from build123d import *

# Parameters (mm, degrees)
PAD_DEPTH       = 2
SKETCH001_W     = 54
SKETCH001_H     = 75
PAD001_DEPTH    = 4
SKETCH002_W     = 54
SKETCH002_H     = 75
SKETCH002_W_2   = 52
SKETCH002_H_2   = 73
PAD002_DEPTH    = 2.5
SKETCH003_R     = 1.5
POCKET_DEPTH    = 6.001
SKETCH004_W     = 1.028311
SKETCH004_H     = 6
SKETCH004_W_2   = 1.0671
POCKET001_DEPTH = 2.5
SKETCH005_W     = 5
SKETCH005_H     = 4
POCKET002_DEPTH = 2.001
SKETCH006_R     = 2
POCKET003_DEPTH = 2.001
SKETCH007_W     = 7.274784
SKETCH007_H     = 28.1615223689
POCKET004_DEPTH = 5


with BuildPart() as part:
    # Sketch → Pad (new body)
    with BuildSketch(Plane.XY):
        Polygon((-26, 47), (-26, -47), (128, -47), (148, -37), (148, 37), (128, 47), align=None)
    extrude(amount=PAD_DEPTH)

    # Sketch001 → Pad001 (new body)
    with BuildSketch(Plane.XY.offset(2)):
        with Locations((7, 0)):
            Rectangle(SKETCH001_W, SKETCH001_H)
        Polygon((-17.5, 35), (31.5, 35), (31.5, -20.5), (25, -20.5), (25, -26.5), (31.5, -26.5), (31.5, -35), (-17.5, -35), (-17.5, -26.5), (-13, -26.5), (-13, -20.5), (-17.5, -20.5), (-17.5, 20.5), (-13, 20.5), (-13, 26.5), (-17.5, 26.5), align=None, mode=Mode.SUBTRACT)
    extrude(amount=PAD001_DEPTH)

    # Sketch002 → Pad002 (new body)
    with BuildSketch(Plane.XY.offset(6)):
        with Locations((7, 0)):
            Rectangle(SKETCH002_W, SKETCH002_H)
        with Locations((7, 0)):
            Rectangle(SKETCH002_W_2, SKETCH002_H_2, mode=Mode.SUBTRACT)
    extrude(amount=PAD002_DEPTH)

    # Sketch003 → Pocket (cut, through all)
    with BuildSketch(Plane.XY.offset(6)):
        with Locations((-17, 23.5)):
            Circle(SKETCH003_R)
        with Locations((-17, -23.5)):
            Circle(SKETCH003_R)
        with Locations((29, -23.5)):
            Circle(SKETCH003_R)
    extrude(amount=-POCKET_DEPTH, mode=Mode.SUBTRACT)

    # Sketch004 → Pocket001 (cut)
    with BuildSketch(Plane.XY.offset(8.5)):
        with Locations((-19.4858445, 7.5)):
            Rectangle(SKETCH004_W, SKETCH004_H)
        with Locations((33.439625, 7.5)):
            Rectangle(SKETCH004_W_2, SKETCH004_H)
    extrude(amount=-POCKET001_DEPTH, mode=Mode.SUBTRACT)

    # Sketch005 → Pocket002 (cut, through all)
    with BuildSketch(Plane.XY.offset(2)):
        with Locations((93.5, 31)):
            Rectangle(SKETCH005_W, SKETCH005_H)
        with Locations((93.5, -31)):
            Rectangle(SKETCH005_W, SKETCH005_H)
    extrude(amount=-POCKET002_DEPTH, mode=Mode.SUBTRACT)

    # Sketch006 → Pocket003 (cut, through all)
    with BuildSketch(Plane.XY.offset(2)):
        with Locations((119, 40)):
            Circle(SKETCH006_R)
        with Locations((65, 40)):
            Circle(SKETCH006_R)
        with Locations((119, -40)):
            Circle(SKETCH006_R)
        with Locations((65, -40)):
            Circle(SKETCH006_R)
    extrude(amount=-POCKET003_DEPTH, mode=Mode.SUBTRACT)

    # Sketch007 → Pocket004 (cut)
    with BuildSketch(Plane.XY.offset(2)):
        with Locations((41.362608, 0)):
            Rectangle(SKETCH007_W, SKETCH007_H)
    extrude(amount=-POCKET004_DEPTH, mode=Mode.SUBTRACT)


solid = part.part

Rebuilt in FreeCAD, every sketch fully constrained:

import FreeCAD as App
import Part
import Sketcher


def add_polygon(sketch, points):
    """Adds a closed chain of lines whose ends are joined by coincident constraints."""
    first, n = sketch.GeometryCount, len(points)
    for a, b in zip(points, points[1:] + points[:1]):
        sketch.addGeometry(Part.LineSegment(App.Vector(*a, 0), App.Vector(*b, 0)), False)
    for i in range(n):
        sketch.addConstraint(Sketcher.Constraint("Coincident", first + i, 2, first + (i + 1) % n, 1))

doc = App.newDocument("Part")
body = doc.addObject("PartDesign::Body", "Body")

# Sketch on XY plane
sketch1 = body.newObject("Sketcher::SketchObject", "Sketch")
sketch1.AttachmentSupport = (doc.getObject("XY_Plane"), [""])
sketch1.MapMode = "FlatFace"
add_polygon(sketch1, [(-26, 47), (-26, -47), (128, -47), (148, -37), (148, 37), (128, 47)])  # lines 0-5
sketch1.addConstraint([
    Sketcher.Constraint("Vertical", 0),
    Sketcher.Constraint("Horizontal", 1),
    Sketcher.Constraint("Vertical", 3),
    Sketcher.Constraint("Horizontal", 5),
    Sketcher.Constraint("Symmetric", 1, 2, 4, 2, -1),
    Sketcher.Constraint("Equal", 2, 4),
    Sketcher.Constraint("DistanceX", 1, 1, 1, 2, 154.0),
    Sketcher.Constraint("DistanceY", 0, 2, 0, 1, 94.0),
    Sketcher.Constraint("DistanceY", 3, 1, 3, 2, 74.0),
    Sketcher.Constraint("DistanceX", 0, 2, -1, 1, 26.0),
    Sketcher.Constraint("DistanceX", -1, 1, 2, 2, 148.0),
])
pad1 = body.newObject("PartDesign::Pad", "Pad")
pad1.Profile = sketch1
pad1.Length = 2

# Sketch on XY plane
sketch2 = body.newObject("Sketcher::SketchObject", "Sketch001")
sketch2.AttachmentSupport = (doc.getObject("XY_Plane"), [""])
sketch2.MapMode = "FlatFace"
sketch2.AttachmentOffset = App.Placement(App.Vector(0, 0, 2), App.Rotation())
add_polygon(sketch2, [(-20, 37.5), (-20, -37.5), (34, -37.5), (34, 37.5)])  # lines 0-3
add_polygon(sketch2, [(-17.5, 26.5), (-17.5, 35), (31.5, 35), (31.5, -20.5), (25, -20.5), (25, -26.5), (31.5, -26.5), (31.5, -35), (-17.5, -35), (-17.5, -26.5), (-13, -26.5), (-13, -20.5), (-17.5, -20.5), (-17.5, 20.5), (-13, 20.5), (-13, 26.5)])  # lines 4-19
sketch2.addConstraint([
    Sketcher.Constraint("Vertical", 0),
    Sketcher.Constraint("Horizontal", 1),
    Sketcher.Constraint("Vertical", 2),
    Sketcher.Constraint("Horizontal", 3),
    Sketcher.Constraint("Vertical", 4),
    Sketcher.Constraint("Horizontal", 5),
    Sketcher.Constraint("Vertical", 6),
    Sketcher.Constraint("Horizontal", 7),
    Sketcher.Constraint("Vertical", 8),
    Sketcher.Constraint("Horizontal", 9),
    Sketcher.Constraint("Vertical", 10),
    Sketcher.Constraint("Horizontal", 11),
    Sketcher.Constraint("Vertical", 12),
    Sketcher.Constraint("Horizontal", 13),
    Sketcher.Constraint("Vertical", 14),
    Sketcher.Constraint("Horizontal", 15),
    Sketcher.Constraint("Vertical", 16),
    Sketcher.Constraint("Horizontal", 17),
    Sketcher.Constraint("Vertical", 18),
    Sketcher.Constraint("Horizontal", 19),
    Sketcher.Constraint("Symmetric", 5, 2, 10, 2, -1),
    Sketcher.Constraint("Symmetric", 14, 2, 17, 2, -1),
    Sketcher.Constraint("Symmetric", 12, 2, 19, 2, -1),
    Sketcher.Constraint("Horizontal", 9, 2, 12, 2),
    Sketcher.Constraint("Horizontal", 7, 2, 14, 2),
    Sketcher.Constraint("Vertical", 12, 2, 15, 2),
    Sketcher.Constraint("DistanceX", 1, 1, 1, 2, 54.0),
    Sketcher.Constraint("DistanceX", 5, 1, 5, 2, 49.0),
    Sketcher.Constraint("DistanceY", 0, 2, 0, 1, 75.0),
    Sketcher.Constraint("DistanceY", 8, 2, 8, 1, 6.0),
    Sketcher.Constraint("DistanceY", 16, 1, 16, 2, 41.0),
    Sketcher.Constraint("DistanceX", 7, 2, 7, 1, 6.5),
    Sketcher.Constraint("DistanceX", 13, 1, 13, 2, 4.5),
    Sketcher.Constraint("DistanceY", 4, 1, 4, 2, 8.5),
    Sketcher.Constraint("DistanceX", 0, 2, -1, 1, 20.0),
    Sketcher.Constraint("DistanceX", -1, 1, 7, 2, 25.0),
    Sketcher.Constraint("DistanceY", 1, 2, 6, 2, 17.0),
])
pad2 = body.newObject("PartDesign::Pad", "Pad001")
pad2.Profile = sketch2
pad2.Length = 4

# Sketch on XY plane
sketch3 = body.newObject("Sketcher::SketchObject", "Sketch002")
sketch3.AttachmentSupport = (doc.getObject("XY_Plane"), [""])
sketch3.MapMode = "FlatFace"
sketch3.AttachmentOffset = App.Placement(App.Vector(0, 0, 6), App.Rotation())
add_polygon(sketch3, [(-20, 37.5), (-20, -37.5), (34, -37.5), (34, 37.5)])  # lines 0-3
add_polygon(sketch3, [(33, -36.5), (-19, -36.5), (-19, 36.5), (33, 36.5)])  # lines 4-7
sketch3.addConstraint([
    Sketcher.Constraint("Vertical", 0),
    Sketcher.Constraint("Horizontal", 1),
    Sketcher.Constraint("Vertical", 2),
    Sketcher.Constraint("Horizontal", 3),
    Sketcher.Constraint("Horizontal", 4),
    Sketcher.Constraint("Vertical", 5),
    Sketcher.Constraint("Horizontal", 6),
    Sketcher.Constraint("Vertical", 7),
    Sketcher.Constraint("DistanceX", 1, 1, 1, 2, 54.0),
    Sketcher.Constraint("DistanceX", 4, 2, 4, 1, 52.0),
    Sketcher.Constraint("DistanceY", 0, 2, 0, 1, 75.0),
    Sketcher.Constraint("DistanceY", 5, 1, 5, 2, 73.0),
    Sketcher.Constraint("DistanceX", 0, 2, -1, 1, 20.0),
    Sketcher.Constraint("DistanceX", 4, 2, -1, 1, 19.0),
    Sketcher.Constraint("DistanceY", 0, 2, 4, 2, 1.0),
    Sketcher.Constraint("DistanceY", 0, 2, -1, 1, 37.5),
])
pad3 = body.newObject("PartDesign::Pad", "Pad002")
pad3.Profile = sketch3
pad3.Length = 2.5

# Sketch on XY plane
sketch4 = body.newObject("Sketcher::SketchObject", "Sketch003")
sketch4.AttachmentSupport = (doc.getObject("XY_Plane"), [""])
sketch4.MapMode = "FlatFace"
sketch4.AttachmentOffset = App.Placement(App.Vector(0, 0, 6), App.Rotation())
sketch4.addGeometry([
    Part.Circle(App.Vector(-17, 23.5, 0), App.Vector(0, 0, 1), 1.5),
    Part.Circle(App.Vector(-17, -23.5, 0), App.Vector(0, 0, 1), 1.5),
    Part.Circle(App.Vector(29, -23.5, 0), App.Vector(0, 0, 1), 1.5),
], False)
sketch4.addConstraint([
    Sketcher.Constraint("Equal", 0, 1),
    Sketcher.Constraint("Equal", 1, 2),
    Sketcher.Constraint("Symmetric", 0, 3, 1, 3, -1),
    Sketcher.Constraint("Horizontal", 1, 3, 2, 3),
    Sketcher.Constraint("Diameter", 0, 3.0),
    Sketcher.Constraint("DistanceX", 0, 3, -1, 1, 17.0),
    Sketcher.Constraint("DistanceX", -1, 1, 2, 3, 29.0),
    Sketcher.Constraint("DistanceY", 1, 3, 0, 3, 47.0),
])
pocket1 = body.newObject("PartDesign::Pocket", "Pocket")
pocket1.Profile = sketch4
pocket1.Type = "ThroughAll"

# Sketch on XY plane
sketch5 = body.newObject("Sketcher::SketchObject", "Sketch004")
sketch5.AttachmentSupport = (doc.getObject("XY_Plane"), [""])
sketch5.MapMode = "FlatFace"
sketch5.AttachmentOffset = App.Placement(App.Vector(0, 0, 8.5), App.Rotation())
add_polygon(sketch5, [(-20, 10.5), (-20, 4.5), (-18.971689, 4.5), (-18.971689, 10.5)])  # lines 0-3
add_polygon(sketch5, [(32.906075, 10.5), (32.906075, 4.5), (33.973175, 4.5), (33.973175, 10.5)])  # lines 4-7
sketch5.addConstraint([
    Sketcher.Constraint("Vertical", 0),
    Sketcher.Constraint("Horizontal", 1),
    Sketcher.Constraint("Vertical", 2),
    Sketcher.Constraint("Horizontal", 3),
    Sketcher.Constraint("Vertical", 4),
    Sketcher.Constraint("Horizontal", 5),
    Sketcher.Constraint("Vertical", 6),
    Sketcher.Constraint("Horizontal", 7),
    Sketcher.Constraint("Horizontal", 1, 2, 4, 2),
    Sketcher.Constraint("Horizontal", 3, 2, 6, 2),
    Sketcher.Constraint("DistanceY", 0, 2, 0, 1, 6.0),
    Sketcher.Constraint("DistanceX", 0, 2, -1, 1, 20.0),
    Sketcher.Constraint("DistanceY", -1, 1, 0, 2, 4.5),
    Sketcher.Constraint("DistanceX", 5, 1, 5, 2, 1.0671),
    Sketcher.Constraint("DistanceX", 1, 1, 1, 2, 1.028311),
    Sketcher.Constraint("DistanceX", -1, 1, 4, 2, 32.906075),
])
pocket2 = body.newObject("PartDesign::Pocket", "Pocket001")
pocket2.Profile = sketch5
pocket2.Length = 2.5

# Sketch on XY plane
sketch6 = body.newObject("Sketcher::SketchObject", "Sketch005")
sketch6.AttachmentSupport = (doc.getObject("XY_Plane"), [""])
sketch6.MapMode = "FlatFace"
sketch6.AttachmentOffset = App.Placement(App.Vector(0, 0, 2), App.Rotation())
add_polygon(sketch6, [(91, 33), (91, 29), (96, 29), (96, 33)])  # lines 0-3
add_polygon(sketch6, [(91, -29), (91, -33), (96, -33), (96, -29)])  # lines 4-7
sketch6.addConstraint([
    Sketcher.Constraint("Vertical", 0),
    Sketcher.Constraint("Horizontal", 1),
    Sketcher.Constraint("Vertical", 2),
    Sketcher.Constraint("Horizontal", 3),
    Sketcher.Constraint("Vertical", 4),
    Sketcher.Constraint("Horizontal", 5),
    Sketcher.Constraint("Vertical", 6),
    Sketcher.Constraint("Horizontal", 7),
    Sketcher.Constraint("Symmetric", 3, 2, 4, 2, -1),
    Sketcher.Constraint("Symmetric", 1, 2, 6, 2, -1),
    Sketcher.Constraint("DistanceX", 1, 1, 1, 2, 5.0),
    Sketcher.Constraint("DistanceY", 0, 2, 0, 1, 4.0),
    Sketcher.Constraint("DistanceX", -1, 1, 0, 2, 91.0),
    Sketcher.Constraint("DistanceY", -1, 1, 0, 2, 29.0),
])
pocket3 = body.newObject("PartDesign::Pocket", "Pocket002")
pocket3.Profile = sketch6
pocket3.Type = "ThroughAll"

# Sketch on XY plane
sketch7 = body.newObject("Sketcher::SketchObject", "Sketch006")
sketch7.AttachmentSupport = (doc.getObject("XY_Plane"), [""])
sketch7.MapMode = "FlatFace"
sketch7.AttachmentOffset = App.Placement(App.Vector(0, 0, 2), App.Rotation())
sketch7.addGeometry([
    Part.Circle(App.Vector(119, 40, 0), App.Vector(0, 0, 1), 2),
    Part.Circle(App.Vector(65, 40, 0), App.Vector(0, 0, 1), 2),
    Part.Circle(App.Vector(119, -40, 0), App.Vector(0, 0, 1), 2),
    Part.Circle(App.Vector(65, -40, 0), App.Vector(0, 0, 1), 2),
], False)
sketch7.addConstraint([
    Sketcher.Constraint("Equal", 0, 1),
    Sketcher.Constraint("Equal", 1, 2),
    Sketcher.Constraint("Equal", 2, 3),
    Sketcher.Constraint("Symmetric", 0, 3, 2, 3, -1),
    Sketcher.Constraint("Symmetric", 1, 3, 3, 3, -1),
    Sketcher.Constraint("Horizontal", 0, 3, 1, 3),
    Sketcher.Constraint("Diameter", 0, 4.0),
    Sketcher.Constraint("DistanceX", -1, 1, 0, 3, 119.0),
    Sketcher.Constraint("DistanceY", -1, 1, 0, 3, 40.0),
    Sketcher.Constraint("DistanceX", -1, 1, 1, 3, 65.0),
])
pocket4 = body.newObject("PartDesign::Pocket", "Pocket003")
pocket4.Profile = sketch7
pocket4.Type = "ThroughAll"

# Sketch on XY plane
sketch8 = body.newObject("Sketcher::SketchObject", "Sketch007")
sketch8.AttachmentSupport = (doc.getObject("XY_Plane"), [""])
sketch8.MapMode = "FlatFace"
sketch8.AttachmentOffset = App.Placement(App.Vector(0, 0, 2), App.Rotation())
add_polygon(sketch8, [(37.725216, 14.080761), (37.725216, -14.080761), (45, -14.080761), (45, 14.080761)])  # lines 0-3
sketch8.addConstraint([
    Sketcher.Constraint("Vertical", 0),
    Sketcher.Constraint("Horizontal", 1),
    Sketcher.Constraint("Vertical", 2),
    Sketcher.Constraint("Horizontal", 3),
    Sketcher.Constraint("DistanceX", -1, 1, 1, 2, 45.0),
    Sketcher.Constraint("DistanceX", 1, 1, 1, 2, 7.274784),
    Sketcher.Constraint("DistanceY", 0, 2, 0, 1, 28.161522),
    Sketcher.Constraint("DistanceY", 0, 2, -1, 1, 14.080761),
])
pocket5 = body.newObject("PartDesign::Pocket", "Pocket004")
pocket5.Profile = sketch8
pocket5.Length = 5

doc.recompute()
